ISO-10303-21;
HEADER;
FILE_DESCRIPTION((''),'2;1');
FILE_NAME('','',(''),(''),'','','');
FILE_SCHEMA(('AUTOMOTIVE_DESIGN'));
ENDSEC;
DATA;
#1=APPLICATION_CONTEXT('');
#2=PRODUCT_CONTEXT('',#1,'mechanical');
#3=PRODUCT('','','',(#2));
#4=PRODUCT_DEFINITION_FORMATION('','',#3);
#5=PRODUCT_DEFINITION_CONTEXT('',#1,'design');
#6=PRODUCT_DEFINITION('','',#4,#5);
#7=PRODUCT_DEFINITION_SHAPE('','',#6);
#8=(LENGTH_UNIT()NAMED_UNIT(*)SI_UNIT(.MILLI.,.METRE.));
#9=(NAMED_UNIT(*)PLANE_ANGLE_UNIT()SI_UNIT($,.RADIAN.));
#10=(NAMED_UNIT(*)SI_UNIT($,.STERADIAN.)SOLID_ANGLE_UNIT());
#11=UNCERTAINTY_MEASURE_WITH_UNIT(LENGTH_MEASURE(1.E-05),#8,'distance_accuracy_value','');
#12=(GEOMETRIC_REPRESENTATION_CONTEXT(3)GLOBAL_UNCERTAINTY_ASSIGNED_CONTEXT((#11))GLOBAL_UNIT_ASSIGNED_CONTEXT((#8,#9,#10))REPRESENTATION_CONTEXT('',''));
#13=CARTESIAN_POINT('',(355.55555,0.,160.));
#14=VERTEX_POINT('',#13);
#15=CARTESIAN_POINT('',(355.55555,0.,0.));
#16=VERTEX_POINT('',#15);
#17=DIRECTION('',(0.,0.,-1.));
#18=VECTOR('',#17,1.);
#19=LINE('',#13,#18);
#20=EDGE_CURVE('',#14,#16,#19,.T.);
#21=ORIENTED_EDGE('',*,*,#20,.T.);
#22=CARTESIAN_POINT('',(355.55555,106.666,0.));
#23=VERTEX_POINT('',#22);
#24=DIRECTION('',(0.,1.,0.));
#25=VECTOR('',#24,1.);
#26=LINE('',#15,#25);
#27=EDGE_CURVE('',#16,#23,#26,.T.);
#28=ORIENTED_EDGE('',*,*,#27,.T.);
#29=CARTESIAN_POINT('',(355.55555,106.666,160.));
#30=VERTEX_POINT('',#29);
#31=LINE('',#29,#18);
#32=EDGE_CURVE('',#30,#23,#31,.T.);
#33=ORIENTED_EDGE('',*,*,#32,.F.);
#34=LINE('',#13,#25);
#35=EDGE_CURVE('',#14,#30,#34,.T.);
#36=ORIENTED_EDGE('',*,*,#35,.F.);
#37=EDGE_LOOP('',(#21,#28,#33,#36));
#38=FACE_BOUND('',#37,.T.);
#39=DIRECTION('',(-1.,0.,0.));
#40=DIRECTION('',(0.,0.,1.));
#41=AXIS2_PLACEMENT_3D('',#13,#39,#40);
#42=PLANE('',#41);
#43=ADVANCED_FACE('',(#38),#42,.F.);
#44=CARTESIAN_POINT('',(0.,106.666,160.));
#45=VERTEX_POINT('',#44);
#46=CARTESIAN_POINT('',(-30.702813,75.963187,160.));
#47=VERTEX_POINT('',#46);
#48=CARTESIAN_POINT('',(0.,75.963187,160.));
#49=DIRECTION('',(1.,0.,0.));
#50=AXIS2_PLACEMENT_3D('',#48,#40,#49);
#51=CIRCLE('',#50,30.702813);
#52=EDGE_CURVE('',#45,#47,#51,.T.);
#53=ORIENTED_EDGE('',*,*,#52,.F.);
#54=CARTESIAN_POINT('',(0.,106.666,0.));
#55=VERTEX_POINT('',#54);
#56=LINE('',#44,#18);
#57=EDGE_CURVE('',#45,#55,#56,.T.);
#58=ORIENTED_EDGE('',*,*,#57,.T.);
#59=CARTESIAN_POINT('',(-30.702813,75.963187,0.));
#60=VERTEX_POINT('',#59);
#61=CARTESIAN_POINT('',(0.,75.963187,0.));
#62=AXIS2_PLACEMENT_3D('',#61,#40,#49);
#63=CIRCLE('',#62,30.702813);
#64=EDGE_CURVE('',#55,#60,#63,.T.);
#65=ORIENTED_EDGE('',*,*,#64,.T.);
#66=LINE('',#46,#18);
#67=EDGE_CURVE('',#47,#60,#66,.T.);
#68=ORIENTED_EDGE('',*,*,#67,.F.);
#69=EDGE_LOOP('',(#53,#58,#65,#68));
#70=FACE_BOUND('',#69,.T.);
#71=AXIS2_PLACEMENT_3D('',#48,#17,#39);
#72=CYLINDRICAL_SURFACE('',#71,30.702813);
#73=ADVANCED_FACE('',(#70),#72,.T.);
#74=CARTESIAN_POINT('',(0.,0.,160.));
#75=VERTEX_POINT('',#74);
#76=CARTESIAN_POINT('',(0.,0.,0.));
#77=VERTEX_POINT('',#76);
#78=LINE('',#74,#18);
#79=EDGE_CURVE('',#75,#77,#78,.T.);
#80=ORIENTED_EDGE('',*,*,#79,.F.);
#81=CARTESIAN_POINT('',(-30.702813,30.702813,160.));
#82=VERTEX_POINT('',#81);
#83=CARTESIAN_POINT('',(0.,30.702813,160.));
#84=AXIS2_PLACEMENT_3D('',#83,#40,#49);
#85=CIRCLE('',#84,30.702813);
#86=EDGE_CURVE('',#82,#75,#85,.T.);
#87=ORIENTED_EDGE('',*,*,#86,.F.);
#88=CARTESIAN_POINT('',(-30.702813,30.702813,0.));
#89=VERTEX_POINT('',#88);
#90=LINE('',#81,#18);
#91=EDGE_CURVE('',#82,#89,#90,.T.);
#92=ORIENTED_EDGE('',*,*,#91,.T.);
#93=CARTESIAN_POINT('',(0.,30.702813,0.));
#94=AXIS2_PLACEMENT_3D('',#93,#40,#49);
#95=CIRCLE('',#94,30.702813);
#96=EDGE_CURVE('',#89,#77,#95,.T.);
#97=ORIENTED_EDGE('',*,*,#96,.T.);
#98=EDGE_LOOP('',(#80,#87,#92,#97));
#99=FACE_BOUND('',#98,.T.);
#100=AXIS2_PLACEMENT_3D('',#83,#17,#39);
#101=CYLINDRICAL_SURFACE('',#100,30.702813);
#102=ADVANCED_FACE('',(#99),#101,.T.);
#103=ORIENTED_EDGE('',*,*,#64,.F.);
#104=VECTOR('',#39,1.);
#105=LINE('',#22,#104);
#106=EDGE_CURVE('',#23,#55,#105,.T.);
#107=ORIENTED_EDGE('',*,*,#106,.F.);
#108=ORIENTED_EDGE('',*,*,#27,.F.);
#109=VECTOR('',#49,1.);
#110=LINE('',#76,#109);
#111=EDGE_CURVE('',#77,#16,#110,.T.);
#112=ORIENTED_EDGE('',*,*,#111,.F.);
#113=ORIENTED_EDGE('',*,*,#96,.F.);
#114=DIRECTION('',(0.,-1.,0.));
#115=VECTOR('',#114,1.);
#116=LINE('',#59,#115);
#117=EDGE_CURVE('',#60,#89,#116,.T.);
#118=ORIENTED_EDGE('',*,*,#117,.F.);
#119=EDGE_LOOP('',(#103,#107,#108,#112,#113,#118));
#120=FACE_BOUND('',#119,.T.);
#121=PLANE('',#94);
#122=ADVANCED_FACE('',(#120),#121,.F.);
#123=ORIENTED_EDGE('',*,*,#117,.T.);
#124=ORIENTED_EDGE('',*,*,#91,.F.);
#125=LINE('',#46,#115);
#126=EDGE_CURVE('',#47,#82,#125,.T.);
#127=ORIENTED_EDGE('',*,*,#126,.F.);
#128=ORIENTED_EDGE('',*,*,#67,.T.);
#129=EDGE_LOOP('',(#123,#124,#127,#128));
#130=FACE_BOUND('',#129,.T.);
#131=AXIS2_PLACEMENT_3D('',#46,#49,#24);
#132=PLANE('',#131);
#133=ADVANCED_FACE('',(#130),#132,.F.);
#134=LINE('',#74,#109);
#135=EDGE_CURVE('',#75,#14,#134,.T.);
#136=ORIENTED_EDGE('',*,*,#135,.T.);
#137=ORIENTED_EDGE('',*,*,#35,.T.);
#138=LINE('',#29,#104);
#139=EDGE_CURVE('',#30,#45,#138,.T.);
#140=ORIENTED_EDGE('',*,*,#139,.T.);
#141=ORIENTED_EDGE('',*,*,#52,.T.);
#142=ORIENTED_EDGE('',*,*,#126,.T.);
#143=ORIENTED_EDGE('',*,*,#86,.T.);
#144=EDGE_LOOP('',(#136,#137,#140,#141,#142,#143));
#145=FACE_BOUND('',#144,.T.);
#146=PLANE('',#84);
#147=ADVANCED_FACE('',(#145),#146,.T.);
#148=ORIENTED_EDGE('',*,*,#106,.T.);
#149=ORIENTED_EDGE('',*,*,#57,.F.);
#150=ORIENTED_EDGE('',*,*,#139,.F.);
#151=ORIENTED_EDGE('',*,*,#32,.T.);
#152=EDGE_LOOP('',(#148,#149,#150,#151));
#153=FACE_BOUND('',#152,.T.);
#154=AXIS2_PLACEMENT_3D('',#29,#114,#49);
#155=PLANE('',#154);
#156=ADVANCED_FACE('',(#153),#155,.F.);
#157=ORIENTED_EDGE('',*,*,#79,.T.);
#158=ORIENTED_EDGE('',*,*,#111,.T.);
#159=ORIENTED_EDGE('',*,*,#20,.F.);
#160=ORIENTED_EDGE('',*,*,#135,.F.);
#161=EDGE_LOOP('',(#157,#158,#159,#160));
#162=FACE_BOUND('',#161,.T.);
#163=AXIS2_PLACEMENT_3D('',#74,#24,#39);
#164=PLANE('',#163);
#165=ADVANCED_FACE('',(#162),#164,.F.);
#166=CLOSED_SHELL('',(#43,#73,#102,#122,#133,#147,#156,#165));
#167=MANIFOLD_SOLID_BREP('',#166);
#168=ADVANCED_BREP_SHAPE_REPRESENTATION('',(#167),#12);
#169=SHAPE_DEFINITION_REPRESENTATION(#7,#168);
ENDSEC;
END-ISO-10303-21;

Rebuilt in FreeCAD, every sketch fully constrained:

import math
import FreeCAD as App
import Part
import Sketcher

V = App.Vector
Q = App.Units.Quantity

doc = App.newDocument("Part")
body = doc.addObject("PartDesign::Body", "Body")

sketch1 = body.newObject("Sketcher::SketchObject", "Sketch")
sketch1.AttachmentSupport = (doc.getObject("XY_Plane"), [""])
sketch1.MapMode = "FlatFace"
sketch1.addGeometry([
    Part.LineSegment(V(0, 0, 0), V(356, 0, 0)),
    Part.LineSegment(V(356, 0, 0), V(356, 107, 0)),
    Part.LineSegment(V(356, 107, 0), V(0, 107, 0)),
    Part.ArcOfCircle(Part.Circle(V(0, 76, 0), V(0, 0, 1), 31), math.radians(90), math.radians(180)),
    Part.LineSegment(V(-31, 76, 0), V(-31, 31, 0)),
    Part.ArcOfCircle(Part.Circle(V(0, 31, 0), V(0, 0, 1), 31), math.radians(180), math.radians(270)),
], False)
sketch1.addConstraint([
    Sketcher.Constraint("Coincident", 0, 2, 1, 1),
    Sketcher.Constraint("Coincident", 1, 2, 2, 1),
    Sketcher.Constraint("Tangent", 2, 2, 3, 1),
    Sketcher.Constraint("Tangent", 3, 2, 4, 1),
    Sketcher.Constraint("Tangent", 4, 2, 5, 1),
    Sketcher.Constraint("Tangent", 5, 2, 0, 1),
    Sketcher.Constraint("Horizontal", 0),
    Sketcher.Constraint("Vertical", 1),
    Sketcher.Constraint("Horizontal", 2),
    Sketcher.Constraint("Vertical", 4),
    Sketcher.Constraint("Coincident", 5, 2, -1, 1),
    Sketcher.Constraint("Equal", 3, 5),
    Sketcher.Constraint("DistanceY", 1, 1, 1, 2, Q("106.666 mm")),
    Sketcher.Constraint("Radius", 3, Q("30.702813 mm")),
    Sketcher.Constraint("DistanceX", 0, 1, 0, 2, Q("355.55555 mm")),
])
pad1 = body.newObject("PartDesign::Pad", "Pad")
pad1.Profile = sketch1
pad1.Length = 160

doc.recompute()
